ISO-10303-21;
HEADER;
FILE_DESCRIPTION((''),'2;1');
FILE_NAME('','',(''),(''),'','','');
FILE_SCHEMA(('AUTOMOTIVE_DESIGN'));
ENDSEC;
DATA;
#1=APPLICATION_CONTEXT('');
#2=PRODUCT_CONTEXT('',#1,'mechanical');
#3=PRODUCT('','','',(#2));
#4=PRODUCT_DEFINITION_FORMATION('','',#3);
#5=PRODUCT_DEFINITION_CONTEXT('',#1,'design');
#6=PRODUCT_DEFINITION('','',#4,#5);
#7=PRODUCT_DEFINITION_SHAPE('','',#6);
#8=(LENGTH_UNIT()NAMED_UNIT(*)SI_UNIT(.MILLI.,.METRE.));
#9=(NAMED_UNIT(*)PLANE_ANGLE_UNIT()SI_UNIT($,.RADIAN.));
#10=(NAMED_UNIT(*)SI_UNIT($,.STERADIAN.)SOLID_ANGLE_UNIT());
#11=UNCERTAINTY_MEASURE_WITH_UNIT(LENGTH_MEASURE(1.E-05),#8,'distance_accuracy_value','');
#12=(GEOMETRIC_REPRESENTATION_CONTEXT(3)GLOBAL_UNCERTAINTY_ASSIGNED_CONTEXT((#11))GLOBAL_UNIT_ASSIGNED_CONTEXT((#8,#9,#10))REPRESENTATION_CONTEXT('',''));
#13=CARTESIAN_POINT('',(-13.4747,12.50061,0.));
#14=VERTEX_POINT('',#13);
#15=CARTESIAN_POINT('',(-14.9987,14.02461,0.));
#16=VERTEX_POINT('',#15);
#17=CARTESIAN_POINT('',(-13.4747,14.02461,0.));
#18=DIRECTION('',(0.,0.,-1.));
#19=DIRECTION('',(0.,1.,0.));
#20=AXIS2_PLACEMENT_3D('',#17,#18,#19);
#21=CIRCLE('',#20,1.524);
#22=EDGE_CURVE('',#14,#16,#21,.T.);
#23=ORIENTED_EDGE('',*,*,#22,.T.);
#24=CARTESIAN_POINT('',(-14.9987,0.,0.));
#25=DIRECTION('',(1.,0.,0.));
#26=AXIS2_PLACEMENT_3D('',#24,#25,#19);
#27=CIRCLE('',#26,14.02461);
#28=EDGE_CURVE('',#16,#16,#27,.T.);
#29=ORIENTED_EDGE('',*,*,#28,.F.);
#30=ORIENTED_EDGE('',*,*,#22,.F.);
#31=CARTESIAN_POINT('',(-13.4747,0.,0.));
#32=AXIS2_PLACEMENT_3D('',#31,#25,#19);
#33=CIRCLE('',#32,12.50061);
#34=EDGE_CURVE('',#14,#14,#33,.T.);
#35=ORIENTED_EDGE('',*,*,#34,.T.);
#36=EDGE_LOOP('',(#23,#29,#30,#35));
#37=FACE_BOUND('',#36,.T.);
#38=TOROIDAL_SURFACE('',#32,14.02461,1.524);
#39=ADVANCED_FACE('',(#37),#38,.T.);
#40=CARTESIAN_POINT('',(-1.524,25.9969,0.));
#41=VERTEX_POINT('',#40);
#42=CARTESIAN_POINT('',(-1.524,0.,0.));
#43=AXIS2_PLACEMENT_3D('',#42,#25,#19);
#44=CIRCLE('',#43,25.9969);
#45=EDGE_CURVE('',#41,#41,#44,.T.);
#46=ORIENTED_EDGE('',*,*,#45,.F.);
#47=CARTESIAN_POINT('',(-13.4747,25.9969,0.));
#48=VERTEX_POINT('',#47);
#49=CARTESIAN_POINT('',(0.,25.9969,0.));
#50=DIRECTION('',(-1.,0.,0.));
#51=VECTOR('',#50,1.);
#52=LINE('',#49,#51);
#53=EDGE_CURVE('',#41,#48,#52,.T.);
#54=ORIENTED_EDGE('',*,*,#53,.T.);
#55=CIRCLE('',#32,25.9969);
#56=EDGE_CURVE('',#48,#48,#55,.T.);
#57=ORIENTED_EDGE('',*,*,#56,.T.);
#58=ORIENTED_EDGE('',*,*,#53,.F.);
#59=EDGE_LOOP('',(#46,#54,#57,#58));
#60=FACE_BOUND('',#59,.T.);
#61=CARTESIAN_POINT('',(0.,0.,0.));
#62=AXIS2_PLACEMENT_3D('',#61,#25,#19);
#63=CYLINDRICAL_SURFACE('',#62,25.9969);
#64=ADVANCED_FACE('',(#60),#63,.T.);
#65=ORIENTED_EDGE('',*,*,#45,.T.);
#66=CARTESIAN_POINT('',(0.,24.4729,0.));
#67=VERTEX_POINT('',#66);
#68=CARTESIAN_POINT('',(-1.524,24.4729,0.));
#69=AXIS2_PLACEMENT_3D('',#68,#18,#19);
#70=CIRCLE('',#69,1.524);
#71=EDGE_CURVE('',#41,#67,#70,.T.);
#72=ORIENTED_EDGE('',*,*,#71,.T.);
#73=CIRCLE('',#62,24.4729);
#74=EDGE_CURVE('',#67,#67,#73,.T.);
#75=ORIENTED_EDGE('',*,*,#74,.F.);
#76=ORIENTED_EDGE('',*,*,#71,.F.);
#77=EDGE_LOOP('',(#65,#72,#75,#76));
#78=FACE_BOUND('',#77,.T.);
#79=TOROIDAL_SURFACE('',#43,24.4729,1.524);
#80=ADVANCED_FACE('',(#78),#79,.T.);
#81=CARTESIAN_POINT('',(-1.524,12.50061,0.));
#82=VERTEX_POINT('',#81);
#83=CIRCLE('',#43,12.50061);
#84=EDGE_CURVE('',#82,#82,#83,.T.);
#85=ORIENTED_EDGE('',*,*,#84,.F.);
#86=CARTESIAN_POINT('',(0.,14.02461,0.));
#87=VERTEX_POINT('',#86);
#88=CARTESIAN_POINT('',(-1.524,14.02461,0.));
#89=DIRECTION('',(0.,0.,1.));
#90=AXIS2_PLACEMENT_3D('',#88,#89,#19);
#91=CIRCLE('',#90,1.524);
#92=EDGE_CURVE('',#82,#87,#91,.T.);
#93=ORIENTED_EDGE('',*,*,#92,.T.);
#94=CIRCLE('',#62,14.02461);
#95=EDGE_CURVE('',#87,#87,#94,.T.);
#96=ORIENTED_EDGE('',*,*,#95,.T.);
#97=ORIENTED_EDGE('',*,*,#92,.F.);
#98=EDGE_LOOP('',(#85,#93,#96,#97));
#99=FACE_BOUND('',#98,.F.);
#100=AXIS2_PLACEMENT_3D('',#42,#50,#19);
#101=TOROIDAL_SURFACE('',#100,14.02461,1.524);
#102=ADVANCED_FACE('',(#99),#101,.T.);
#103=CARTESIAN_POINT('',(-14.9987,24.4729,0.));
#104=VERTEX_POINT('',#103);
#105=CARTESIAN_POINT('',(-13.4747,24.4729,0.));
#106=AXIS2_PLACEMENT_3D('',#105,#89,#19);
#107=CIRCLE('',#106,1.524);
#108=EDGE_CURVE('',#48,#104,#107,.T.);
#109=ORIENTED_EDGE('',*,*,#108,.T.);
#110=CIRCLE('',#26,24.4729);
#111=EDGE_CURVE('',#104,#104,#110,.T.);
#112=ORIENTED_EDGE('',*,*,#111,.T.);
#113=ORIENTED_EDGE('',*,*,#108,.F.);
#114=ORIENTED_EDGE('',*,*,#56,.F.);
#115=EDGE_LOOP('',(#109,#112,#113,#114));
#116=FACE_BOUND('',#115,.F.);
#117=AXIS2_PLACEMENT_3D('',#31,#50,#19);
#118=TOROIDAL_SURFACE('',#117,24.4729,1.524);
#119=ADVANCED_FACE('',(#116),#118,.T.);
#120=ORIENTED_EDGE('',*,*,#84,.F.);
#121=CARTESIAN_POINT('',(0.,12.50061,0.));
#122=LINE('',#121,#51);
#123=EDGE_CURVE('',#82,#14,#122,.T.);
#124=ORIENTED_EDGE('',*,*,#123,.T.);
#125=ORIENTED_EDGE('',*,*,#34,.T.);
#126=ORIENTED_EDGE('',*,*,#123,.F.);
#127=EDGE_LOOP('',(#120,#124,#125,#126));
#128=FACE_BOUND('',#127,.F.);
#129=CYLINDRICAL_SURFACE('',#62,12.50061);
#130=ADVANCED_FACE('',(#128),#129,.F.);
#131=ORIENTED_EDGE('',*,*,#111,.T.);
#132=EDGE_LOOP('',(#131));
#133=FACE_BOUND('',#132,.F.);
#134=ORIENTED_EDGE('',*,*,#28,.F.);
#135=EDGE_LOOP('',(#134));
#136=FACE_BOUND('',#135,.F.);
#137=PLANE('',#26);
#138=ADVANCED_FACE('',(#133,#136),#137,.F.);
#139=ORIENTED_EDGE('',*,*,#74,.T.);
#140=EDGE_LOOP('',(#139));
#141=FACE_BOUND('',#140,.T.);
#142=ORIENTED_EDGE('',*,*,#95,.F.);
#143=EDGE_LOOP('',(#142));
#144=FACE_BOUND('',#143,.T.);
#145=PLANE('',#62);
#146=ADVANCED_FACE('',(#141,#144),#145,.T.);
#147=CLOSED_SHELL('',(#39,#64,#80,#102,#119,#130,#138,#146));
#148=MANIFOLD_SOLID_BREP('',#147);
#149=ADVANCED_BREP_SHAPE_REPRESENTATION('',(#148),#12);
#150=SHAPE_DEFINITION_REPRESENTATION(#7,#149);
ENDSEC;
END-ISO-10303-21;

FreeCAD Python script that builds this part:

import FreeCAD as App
import Part
import Sketcher
from FreeCAD import Vector
Q = App.Units.Quantity


def edges_at(feature, points):
    """Names of the edges that pass closest to the given points."""
    edges = feature.Shape.Edges
    near = lambda p: min(range(len(edges)), key=lambda i: edges[i].distToShape(Part.Vertex(*p))[0])
    return sorted({f"Edge{near(p) + 1}" for p in points})

doc = App.newDocument("Part")
body = doc.addObject("PartDesign::Body", "Body")

# Sketch on YZ plane
sketch1 = doc.addObject("Sketcher::SketchObject", "Sketch")
body.addObject(sketch1)
sketch1.AttachmentSupport = (doc.YZ_Plane, [""])
sketch1.MapMode = "FlatFace"
sketch1.addGeometry([
    Part.Circle(Vector(0, 0, 0), Vector(0, 0, 1), 25.9969),
    Part.Circle(Vector(0, 0, 0), Vector(0, 0, 1), 12.50061),
], False)
sketch1.addConstraint([
    Sketcher.Constraint("Coincident", 0, 3, -1, 1),
    Sketcher.Constraint("Coincident", 1, 3, -1, 1),
    Sketcher.Constraint("Diameter", 0, Q("2.047 in")),
    Sketcher.Constraint("Diameter", 1, Q("0.9843 in")),
])
pad1 = doc.addObject("PartDesign::Pad", "Pad")
body.addObject(pad1)
pad1.Profile = sketch1
pad1.Length = Q("0.5905 in")
pad1.Reversed = True
doc.recompute()

fillet = doc.addObject("PartDesign::Fillet", "Fillet")
body.addObject(fillet)
fillet.Base = (pad1, edges_at(pad1, [
    (0, -25.997, 0),
    (0, -12.501, 0),
    (-14.999, -25.997, 0),
    (-14.999, -12.501, 0),
]))
fillet.Radius = Q("0.06 in")

doc.recompute()
